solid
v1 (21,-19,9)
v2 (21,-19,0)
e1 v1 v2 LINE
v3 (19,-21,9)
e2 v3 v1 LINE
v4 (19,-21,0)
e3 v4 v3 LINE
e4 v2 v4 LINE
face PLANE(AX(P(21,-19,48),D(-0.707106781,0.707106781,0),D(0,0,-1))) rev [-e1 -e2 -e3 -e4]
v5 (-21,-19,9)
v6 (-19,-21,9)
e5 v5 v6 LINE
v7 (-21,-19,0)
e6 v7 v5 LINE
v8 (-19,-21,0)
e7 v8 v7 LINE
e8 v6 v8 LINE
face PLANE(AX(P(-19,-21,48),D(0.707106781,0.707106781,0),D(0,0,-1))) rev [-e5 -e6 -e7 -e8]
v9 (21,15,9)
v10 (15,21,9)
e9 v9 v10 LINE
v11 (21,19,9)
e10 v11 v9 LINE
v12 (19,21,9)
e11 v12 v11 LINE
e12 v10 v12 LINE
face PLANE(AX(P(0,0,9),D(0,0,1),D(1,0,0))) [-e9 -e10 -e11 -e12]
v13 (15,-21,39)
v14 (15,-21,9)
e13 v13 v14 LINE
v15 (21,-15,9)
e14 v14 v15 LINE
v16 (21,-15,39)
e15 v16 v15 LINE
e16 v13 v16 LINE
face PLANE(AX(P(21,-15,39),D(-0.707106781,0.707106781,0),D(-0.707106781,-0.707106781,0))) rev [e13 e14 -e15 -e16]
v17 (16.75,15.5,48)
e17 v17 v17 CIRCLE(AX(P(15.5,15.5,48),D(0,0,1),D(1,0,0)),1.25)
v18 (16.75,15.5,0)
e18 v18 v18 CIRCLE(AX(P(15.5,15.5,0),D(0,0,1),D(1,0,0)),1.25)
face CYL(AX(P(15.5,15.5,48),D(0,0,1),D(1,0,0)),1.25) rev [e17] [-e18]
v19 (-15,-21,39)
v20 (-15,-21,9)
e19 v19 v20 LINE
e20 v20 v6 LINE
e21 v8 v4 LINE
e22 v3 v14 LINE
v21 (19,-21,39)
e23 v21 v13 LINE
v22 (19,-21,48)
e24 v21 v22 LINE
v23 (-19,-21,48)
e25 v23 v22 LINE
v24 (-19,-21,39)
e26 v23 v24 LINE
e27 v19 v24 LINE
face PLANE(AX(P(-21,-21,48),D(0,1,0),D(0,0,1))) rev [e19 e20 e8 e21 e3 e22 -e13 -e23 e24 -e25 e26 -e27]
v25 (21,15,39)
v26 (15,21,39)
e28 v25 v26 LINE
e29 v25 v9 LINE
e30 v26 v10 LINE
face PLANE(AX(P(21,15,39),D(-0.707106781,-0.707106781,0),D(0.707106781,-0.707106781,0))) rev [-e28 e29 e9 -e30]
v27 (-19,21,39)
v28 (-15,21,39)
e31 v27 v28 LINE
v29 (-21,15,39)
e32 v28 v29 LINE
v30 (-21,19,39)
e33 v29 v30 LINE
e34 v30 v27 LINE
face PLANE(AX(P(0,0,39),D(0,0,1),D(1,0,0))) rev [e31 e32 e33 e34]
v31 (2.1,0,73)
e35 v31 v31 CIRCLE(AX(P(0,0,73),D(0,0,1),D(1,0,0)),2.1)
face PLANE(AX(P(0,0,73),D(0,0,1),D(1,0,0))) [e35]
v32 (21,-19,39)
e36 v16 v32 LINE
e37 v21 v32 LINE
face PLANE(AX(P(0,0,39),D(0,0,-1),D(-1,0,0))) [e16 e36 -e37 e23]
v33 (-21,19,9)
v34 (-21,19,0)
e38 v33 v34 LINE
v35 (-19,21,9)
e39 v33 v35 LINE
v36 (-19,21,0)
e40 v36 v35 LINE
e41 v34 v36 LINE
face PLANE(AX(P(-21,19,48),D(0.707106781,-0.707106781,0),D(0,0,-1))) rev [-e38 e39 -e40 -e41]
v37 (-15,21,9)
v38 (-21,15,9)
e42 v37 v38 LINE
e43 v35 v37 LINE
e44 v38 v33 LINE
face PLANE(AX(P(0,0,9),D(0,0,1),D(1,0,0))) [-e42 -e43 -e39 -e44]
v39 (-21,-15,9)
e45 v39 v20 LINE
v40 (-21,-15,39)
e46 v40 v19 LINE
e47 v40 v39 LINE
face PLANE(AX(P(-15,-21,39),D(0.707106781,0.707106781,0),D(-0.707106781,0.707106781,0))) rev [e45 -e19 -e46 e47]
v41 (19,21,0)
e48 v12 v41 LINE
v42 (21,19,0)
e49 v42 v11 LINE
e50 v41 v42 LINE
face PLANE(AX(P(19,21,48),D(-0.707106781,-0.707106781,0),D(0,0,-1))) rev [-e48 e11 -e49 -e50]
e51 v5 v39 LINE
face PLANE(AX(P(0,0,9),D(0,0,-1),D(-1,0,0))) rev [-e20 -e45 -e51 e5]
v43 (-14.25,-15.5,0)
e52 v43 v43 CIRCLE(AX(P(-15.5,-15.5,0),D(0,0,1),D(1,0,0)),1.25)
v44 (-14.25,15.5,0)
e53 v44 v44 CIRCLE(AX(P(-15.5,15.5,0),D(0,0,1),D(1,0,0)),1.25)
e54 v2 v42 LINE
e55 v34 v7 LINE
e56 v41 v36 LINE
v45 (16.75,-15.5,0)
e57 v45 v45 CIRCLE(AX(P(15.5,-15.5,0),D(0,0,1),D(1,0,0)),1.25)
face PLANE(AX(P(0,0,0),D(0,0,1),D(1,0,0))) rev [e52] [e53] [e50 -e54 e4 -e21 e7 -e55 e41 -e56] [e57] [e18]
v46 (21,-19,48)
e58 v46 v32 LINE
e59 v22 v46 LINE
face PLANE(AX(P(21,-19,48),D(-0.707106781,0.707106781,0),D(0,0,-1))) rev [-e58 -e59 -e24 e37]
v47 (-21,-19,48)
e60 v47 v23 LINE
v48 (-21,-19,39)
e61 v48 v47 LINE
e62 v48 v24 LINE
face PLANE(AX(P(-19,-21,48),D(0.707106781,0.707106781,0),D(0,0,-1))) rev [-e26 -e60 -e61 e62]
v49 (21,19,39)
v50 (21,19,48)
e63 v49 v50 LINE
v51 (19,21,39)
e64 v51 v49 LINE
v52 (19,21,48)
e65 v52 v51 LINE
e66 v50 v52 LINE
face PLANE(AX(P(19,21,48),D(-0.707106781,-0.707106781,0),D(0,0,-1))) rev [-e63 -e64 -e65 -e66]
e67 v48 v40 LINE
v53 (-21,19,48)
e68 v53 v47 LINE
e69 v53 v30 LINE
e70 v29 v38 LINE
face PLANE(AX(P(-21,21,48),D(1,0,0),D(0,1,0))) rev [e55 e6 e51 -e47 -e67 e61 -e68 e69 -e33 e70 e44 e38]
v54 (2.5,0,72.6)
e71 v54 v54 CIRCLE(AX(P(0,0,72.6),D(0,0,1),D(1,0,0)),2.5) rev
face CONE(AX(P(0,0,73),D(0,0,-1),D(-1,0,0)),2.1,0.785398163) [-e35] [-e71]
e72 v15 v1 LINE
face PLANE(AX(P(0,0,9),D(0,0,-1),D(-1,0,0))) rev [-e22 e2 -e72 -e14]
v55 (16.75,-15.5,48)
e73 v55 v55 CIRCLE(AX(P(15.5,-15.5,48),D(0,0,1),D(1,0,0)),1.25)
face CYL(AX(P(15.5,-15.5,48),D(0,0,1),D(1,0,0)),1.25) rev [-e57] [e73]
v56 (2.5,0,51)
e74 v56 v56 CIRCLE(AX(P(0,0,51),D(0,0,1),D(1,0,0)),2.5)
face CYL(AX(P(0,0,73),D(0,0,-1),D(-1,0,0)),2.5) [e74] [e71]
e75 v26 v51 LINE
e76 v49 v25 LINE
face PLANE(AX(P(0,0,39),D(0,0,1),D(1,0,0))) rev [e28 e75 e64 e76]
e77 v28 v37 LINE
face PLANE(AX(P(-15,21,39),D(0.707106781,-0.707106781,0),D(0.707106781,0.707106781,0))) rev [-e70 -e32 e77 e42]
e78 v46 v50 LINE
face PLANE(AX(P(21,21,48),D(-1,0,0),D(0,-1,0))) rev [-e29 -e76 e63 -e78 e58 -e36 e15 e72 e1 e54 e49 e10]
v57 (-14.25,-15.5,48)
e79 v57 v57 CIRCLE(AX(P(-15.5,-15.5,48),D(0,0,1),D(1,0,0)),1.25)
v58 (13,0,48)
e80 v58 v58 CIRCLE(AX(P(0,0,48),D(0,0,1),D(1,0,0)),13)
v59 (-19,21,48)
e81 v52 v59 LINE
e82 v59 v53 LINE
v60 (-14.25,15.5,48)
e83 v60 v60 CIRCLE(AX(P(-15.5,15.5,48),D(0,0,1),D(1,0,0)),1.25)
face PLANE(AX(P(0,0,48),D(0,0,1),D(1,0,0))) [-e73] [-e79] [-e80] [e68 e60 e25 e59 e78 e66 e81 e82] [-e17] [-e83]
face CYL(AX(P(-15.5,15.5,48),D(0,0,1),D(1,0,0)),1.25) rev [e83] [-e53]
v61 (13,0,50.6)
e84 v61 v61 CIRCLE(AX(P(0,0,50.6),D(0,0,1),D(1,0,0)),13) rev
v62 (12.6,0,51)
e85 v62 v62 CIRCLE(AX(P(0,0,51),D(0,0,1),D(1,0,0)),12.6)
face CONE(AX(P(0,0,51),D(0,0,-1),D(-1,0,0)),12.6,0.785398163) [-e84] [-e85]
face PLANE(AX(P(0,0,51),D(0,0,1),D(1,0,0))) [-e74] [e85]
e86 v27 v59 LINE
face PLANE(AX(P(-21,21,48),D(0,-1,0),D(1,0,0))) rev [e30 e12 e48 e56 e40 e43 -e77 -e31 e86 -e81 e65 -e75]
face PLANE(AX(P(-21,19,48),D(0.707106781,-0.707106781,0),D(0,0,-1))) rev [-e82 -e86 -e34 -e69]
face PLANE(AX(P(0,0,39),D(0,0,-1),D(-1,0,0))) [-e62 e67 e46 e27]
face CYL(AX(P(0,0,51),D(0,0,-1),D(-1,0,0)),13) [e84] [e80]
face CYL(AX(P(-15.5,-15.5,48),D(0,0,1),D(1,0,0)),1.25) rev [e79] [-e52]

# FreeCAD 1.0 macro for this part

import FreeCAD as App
import Part
import Sketcher

V = App.Vector


def edges_at(feature, points):
    """Names of the edges that pass closest to the given points."""
    edges = feature.Shape.Edges
    near = lambda p: min(range(len(edges)), key=lambda i: edges[i].distToShape(Part.Vertex(*p))[0])
    return sorted({f"Edge{near(p) + 1}" for p in points})


def add_polygon(sketch, points):
    """Adds a closed chain of lines whose ends are joined by coincident constraints."""
    first, n = sketch.GeometryCount, len(points)
    for a, b in zip(points, points[1:] + points[:1]):
        sketch.addGeometry(Part.LineSegment(App.Vector(*a, 0), App.Vector(*b, 0)), False)
    for i in range(n):
        sketch.addConstraint(Sketcher.Constraint("Coincident", first + i, 2, first + (i + 1) % n, 1))

doc = App.newDocument("Part")
body = doc.addObject("PartDesign::Body", "Body")

sketch1 = body.newObject("Sketcher::SketchObject", "Sketch")
sketch1.AttachmentSupport = (doc.getObject("XY_Plane"), [""])
sketch1.MapMode = "FlatFace"
add_polygon(sketch1, [(-21, 21), (-21, -21), (21, -21), (21, 21)])
sketch1.addConstraint(Sketcher.Constraint("Vertical", 0))
sketch1.addConstraint(Sketcher.Constraint("Horizontal", 1))
sketch1.addConstraint(Sketcher.Constraint("Vertical", 2))
sketch1.addConstraint(Sketcher.Constraint("Horizontal", 3))
sketch1.addConstraint(Sketcher.Constraint("Symmetric", 0, 2, 2, 2, -1, 1))
sketch1.addConstraint(Sketcher.Constraint("Equal", 3, 0))
sketch1.addConstraint(Sketcher.Constraint("DistanceX", 1, 1, 1, 2, 42.0))
pad1 = body.newObject("PartDesign::Pad", "Pad")
pad1.Profile = sketch1
pad1.Length = 48
doc.recompute()

chamfer = body.newObject("PartDesign::Chamfer", "Chamfer")
chamfer.Base = (pad1, edges_at(pad1, [
    (-21, 21, 24),
    (21, 21, 24),
    (21, -21, 24),
    (-21, -21, 24),
]))
chamfer.Size = 2

sketch2 = body.newObject("Sketcher::SketchObject", "Sketch001")
sketch2.AttachmentSupport = (doc.getObject("XY_Plane"), [""])
sketch2.MapMode = "FlatFace"
sketch2.AttachmentOffset = App.Placement(V(0, 0, 48), App.Rotation())
sketch2.addGeometry(Part.Circle(V(0, 0, 0), V(0, 0, 1), 13), False)
sketch2.addConstraint(Sketcher.Constraint("Coincident", 0, 3, -1, 1))
sketch2.addConstraint(Sketcher.Constraint("Diameter", 0, 26.0))
pad2 = body.newObject("PartDesign::Pad", "Pad001")
pad2.Profile = sketch2
pad2.Length = 3

sketch3 = body.newObject("Sketcher::SketchObject", "Sketch002")
sketch3.AttachmentSupport = (doc.getObject("XY_Plane"), [""])
sketch3.MapMode = "FlatFace"
sketch3.AttachmentOffset = App.Placement(V(0, 0, 48), App.Rotation())
sketch3.addGeometry(Part.Circle(V(-15.5, 15.5, 0), V(0, 0, 1), 1.2), False)
sketch3.addGeometry(Part.Circle(V(-15.5, -15.5, 0), V(0, 0, 1), 1.2), False)
sketch3.addGeometry(Part.Circle(V(15.5, -15.5, 0), V(0, 0, 1), 1.2), False)
sketch3.addGeometry(Part.Circle(V(15.5, 15.5, 0), V(0, 0, 1), 1.2), False)
sketch3.addConstraint(Sketcher.Constraint("Equal", 0, 1))
sketch3.addConstraint(Sketcher.Constraint("Equal", 1, 2))
sketch3.addConstraint(Sketcher.Constraint("Equal", 2, 3))
sketch3.addConstraint(Sketcher.Constraint("Symmetric", 0, 3, 2, 3, -1, 1))
sketch3.addConstraint(Sketcher.Constraint("Symmetric", 1, 3, 3, 3, -1, 1))
sketch3.addConstraint(Sketcher.Constraint("Symmetric", 1, 3, 2, 3, -2))
sketch3.addConstraint(Sketcher.Constraint("Diameter", 0, 2.5))
sketch3.addConstraint(Sketcher.Constraint("DistanceY", 1, 3, 0, 3, 31.0))
sketch3.addConstraint(Sketcher.Constraint("DistanceX", 1, 3, 2, 3, 31.0))
doc.recompute()
hole = body.newObject("PartDesign::Hole", "Hole")
hole.Profile = sketch3
hole.ThreadType = "None"
hole.Diameter = 2.5
hole.DepthType = "ThroughAll"

sketch4 = body.newObject("Sketcher::SketchObject", "Sketch003")
sketch4.AttachmentSupport = (doc.getObject("XY_Plane"), [""])
sketch4.MapMode = "FlatFace"
sketch4.AttachmentOffset = App.Placement(V(0, 0, 51), App.Rotation())
sketch4.addGeometry(Part.Circle(V(0, 0, 0), V(0, 0, 1), 2.5), False)
sketch4.addConstraint(Sketcher.Constraint("Coincident", 0, 3, -1, 1))
sketch4.addConstraint(Sketcher.Constraint("Diameter", 0, 5.0))
pad3 = body.newObject("PartDesign::Pad", "Pad002")
pad3.Profile = sketch4
pad3.Length = 22
doc.recompute()

chamfer2 = body.newObject("PartDesign::Chamfer", "Chamfer001")
chamfer2.Base = (pad3, edges_at(pad3, [(-2.5, 0, 73)]))
chamfer2.Size = 0.4
doc.recompute()

chamfer3 = body.newObject("PartDesign::Chamfer", "Chamfer002")
chamfer3.Base = (chamfer2, edges_at(chamfer2, [(-13, 0, 51)]))
chamfer3.Size = 0.4

sketch5 = body.newObject("Sketcher::SketchObject", "Sketch004")
sketch5.AttachmentSupport = (doc.getObject("XY_Plane"), [""])
sketch5.MapMode = "FlatFace"
sketch5.AttachmentOffset = App.Placement(V(0, 0, 9), App.Rotation())
add_polygon(sketch5, [(21, 15), (15, 21), (21, 21)])
add_polygon(sketch5, [(-15, 21), (-21, 15), (-21, 21)])
add_polygon(sketch5, [(15, -21), (21, -15), (21, -21)])
add_polygon(sketch5, [(-21, -15), (-15, -21), (-21, -21)])
sketch5.addConstraint(Sketcher.Constraint("Horizontal", 1))
sketch5.addConstraint(Sketcher.Constraint("Vertical", 2))
sketch5.addConstraint(Sketcher.Constraint("Vertical", 4))
sketch5.addConstraint(Sketcher.Constraint("Horizontal", 5))
sketch5.addConstraint(Sketcher.Constraint("Vertical", 7))
sketch5.addConstraint(Sketcher.Constraint("Horizontal", 8))
sketch5.addConstraint(Sketcher.Constraint("Horizontal", 10))
sketch5.addConstraint(Sketcher.Constraint("Vertical", 11))
sketch5.addConstraint(Sketcher.Constraint("Symmetric", 3, 2, 6, 2, -1, 1))
sketch5.addConstraint(Sketcher.Constraint("Symmetric", 5, 2, 8, 2, -1, 1))
sketch5.addConstraint(Sketcher.Constraint("Symmetric", 0, 2, 9, 2, -1, 1))
sketch5.addConstraint(Sketcher.Constraint("Symmetric", 2, 2, 11, 2, -1, 1))
sketch5.addConstraint(Sketcher.Constraint("Symmetric", 2, 2, 3, 2, -2))
sketch5.addConstraint(Sketcher.Constraint("Symmetric", 0, 2, 5, 2, -2))
sketch5.addConstraint(Sketcher.Constraint("Perpendicular", 0, 3))
sketch5.addConstraint(Sketcher.Constraint("DistanceX", 1, 1, 1, 2, 6.0))
sketch5.addConstraint(Sketcher.Constraint("DistanceX", -1, 1, 0, 2, 15.0))
sketch5.addConstraint(Sketcher.Constraint("DistanceY", -1, 1, 0, 2, 21.0))
pocket1 = body.newObject("PartDesign::Pocket", "Pocket")
pocket1.Profile = sketch5
pocket1.Length = 30
pocket1.Reversed = True

doc.recompute()
